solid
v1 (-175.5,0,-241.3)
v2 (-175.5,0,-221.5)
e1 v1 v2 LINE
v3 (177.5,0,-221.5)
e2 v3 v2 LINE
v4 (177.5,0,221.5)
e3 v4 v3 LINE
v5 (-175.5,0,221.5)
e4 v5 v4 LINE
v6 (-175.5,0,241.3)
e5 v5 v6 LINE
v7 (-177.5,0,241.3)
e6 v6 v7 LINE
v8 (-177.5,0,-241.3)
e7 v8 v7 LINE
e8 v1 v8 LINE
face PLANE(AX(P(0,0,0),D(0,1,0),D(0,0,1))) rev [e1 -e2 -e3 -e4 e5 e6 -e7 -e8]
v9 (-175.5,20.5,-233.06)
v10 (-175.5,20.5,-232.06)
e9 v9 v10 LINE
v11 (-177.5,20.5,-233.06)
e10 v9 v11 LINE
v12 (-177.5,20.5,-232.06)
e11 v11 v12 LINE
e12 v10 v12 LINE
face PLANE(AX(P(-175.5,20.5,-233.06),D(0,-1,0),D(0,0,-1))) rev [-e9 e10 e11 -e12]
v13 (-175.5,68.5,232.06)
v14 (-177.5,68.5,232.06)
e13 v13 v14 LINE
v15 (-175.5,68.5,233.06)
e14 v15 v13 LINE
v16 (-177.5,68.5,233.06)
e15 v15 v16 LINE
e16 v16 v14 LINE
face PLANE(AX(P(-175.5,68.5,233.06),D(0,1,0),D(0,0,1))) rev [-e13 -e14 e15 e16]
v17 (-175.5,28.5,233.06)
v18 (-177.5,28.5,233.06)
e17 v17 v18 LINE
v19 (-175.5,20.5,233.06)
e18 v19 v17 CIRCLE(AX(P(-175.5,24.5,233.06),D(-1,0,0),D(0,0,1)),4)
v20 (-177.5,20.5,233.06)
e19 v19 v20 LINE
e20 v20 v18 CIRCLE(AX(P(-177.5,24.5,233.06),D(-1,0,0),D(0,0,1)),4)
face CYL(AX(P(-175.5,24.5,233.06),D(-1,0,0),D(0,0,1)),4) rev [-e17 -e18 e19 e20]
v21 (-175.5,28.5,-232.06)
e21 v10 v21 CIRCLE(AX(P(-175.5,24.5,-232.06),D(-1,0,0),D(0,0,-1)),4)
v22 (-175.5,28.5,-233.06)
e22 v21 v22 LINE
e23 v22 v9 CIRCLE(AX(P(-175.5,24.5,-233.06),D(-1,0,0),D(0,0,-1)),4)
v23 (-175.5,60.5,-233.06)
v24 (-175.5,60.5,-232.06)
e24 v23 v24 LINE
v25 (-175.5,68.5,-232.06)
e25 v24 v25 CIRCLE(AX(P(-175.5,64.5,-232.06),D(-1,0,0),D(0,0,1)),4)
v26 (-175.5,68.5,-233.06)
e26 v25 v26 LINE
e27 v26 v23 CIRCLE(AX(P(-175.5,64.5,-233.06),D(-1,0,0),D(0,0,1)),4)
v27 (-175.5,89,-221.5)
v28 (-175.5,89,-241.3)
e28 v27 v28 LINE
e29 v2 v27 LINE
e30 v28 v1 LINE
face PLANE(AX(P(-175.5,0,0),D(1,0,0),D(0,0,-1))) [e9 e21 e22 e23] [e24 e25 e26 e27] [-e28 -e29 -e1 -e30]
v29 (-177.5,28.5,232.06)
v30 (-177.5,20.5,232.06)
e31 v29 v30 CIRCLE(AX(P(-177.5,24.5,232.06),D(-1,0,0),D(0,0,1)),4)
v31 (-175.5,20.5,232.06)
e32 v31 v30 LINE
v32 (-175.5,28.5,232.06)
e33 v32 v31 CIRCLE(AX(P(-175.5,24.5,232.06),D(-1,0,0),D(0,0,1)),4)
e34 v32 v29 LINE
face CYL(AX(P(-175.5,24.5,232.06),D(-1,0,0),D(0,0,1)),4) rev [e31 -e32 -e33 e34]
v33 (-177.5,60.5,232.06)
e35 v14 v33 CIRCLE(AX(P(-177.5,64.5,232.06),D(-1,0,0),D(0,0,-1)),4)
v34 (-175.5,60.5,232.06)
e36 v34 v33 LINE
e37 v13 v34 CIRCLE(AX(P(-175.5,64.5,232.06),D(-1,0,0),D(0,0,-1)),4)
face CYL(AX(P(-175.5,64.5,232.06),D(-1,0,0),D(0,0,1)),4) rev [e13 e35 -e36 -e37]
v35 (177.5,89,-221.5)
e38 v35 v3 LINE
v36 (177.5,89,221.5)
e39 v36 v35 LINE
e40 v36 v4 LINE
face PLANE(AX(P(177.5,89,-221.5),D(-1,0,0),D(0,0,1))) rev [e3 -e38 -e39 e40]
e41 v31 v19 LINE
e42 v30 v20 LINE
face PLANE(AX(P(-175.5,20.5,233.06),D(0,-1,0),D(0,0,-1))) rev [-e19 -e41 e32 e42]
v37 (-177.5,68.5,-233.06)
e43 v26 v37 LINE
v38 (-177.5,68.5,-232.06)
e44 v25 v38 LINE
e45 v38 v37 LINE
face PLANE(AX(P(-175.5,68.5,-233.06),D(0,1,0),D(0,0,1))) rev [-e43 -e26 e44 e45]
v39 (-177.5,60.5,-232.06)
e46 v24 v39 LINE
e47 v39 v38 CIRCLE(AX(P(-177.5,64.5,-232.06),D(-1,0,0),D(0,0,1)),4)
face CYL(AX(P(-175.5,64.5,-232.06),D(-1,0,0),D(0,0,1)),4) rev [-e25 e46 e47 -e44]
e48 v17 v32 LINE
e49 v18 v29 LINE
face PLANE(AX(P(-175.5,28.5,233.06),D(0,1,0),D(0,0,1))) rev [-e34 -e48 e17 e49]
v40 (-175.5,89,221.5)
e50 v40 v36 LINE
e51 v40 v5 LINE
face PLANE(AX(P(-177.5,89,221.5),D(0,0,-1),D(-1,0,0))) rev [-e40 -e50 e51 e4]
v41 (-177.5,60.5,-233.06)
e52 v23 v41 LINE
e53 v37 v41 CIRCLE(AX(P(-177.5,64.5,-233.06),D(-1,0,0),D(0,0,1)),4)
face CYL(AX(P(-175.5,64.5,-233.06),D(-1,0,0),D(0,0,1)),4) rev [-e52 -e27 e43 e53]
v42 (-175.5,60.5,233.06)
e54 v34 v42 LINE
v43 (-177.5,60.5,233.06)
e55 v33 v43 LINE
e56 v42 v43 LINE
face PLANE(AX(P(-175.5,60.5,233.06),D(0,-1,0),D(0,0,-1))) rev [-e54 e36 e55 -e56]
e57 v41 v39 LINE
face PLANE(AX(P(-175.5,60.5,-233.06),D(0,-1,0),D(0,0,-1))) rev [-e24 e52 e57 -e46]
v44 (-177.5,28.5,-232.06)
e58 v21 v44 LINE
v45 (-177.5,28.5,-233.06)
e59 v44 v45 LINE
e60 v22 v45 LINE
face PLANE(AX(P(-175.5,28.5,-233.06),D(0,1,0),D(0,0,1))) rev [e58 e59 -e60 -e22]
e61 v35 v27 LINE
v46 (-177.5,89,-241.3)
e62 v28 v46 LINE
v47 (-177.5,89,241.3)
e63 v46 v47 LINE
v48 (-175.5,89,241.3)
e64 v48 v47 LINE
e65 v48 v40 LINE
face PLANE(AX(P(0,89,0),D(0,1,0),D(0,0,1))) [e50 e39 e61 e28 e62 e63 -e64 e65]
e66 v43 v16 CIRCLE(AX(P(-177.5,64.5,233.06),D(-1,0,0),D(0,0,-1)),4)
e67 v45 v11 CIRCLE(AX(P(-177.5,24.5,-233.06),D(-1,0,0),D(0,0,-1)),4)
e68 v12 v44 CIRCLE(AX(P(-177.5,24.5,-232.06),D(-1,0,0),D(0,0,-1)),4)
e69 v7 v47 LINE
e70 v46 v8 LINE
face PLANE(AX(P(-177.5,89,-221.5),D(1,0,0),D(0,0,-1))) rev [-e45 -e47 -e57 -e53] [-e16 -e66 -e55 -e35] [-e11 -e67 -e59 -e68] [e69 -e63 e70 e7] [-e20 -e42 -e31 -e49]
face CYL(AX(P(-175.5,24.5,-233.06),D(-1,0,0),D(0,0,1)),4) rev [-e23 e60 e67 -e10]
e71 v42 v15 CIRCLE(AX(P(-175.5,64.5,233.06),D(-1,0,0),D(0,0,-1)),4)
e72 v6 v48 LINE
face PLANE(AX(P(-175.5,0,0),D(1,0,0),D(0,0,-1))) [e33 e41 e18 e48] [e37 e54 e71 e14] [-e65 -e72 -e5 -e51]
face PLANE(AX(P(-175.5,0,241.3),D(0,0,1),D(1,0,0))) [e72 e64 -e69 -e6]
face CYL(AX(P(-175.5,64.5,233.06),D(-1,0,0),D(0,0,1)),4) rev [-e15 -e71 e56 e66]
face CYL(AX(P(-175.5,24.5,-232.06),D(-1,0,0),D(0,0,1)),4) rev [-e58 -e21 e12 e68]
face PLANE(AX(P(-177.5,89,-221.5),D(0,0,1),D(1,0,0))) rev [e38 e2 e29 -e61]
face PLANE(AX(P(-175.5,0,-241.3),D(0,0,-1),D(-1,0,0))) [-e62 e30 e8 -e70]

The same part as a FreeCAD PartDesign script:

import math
import FreeCAD as App
import Part
import Sketcher
from FreeCAD import Vector


def add_polygon(sketch, points):
    """Adds a closed chain of lines whose ends are joined by coincident constraints."""
    first, n = sketch.GeometryCount, len(points)
    for a, b in zip(points, points[1:] + points[:1]):
        sketch.addGeometry(Part.LineSegment(App.Vector(*a, 0), App.Vector(*b, 0)), False)
    for i in range(n):
        sketch.addConstraint(Sketcher.Constraint("Coincident", first + i, 2, first + (i + 1) % n, 1))

doc = App.newDocument("Part")
body = doc.addObject("PartDesign::Body", "Body")

sketch1 = body.newObject("Sketcher::SketchObject", "Sketch")
sketch1.AttachmentSupport = (doc.getObject("XZ_Plane"), [""])
sketch1.MapMode = "FlatFace"
add_polygon(sketch1, [(-177.5, -221.5), (-177.5, 221.5), (177.5, 221.5), (177.5, -221.5)])
sketch1.addConstraint(Sketcher.Constraint("Vertical", 0))
sketch1.addConstraint(Sketcher.Constraint("Horizontal", 1))
sketch1.addConstraint(Sketcher.Constraint("Vertical", 2))
sketch1.addConstraint(Sketcher.Constraint("Horizontal", 3))
sketch1.addConstraint(Sketcher.Constraint("Symmetric", 0, 2, 2, 2, -1, 1))
sketch1.addConstraint(Sketcher.Constraint("DistanceX", 1, 1, 1, 2, 355.0))
sketch1.addConstraint(Sketcher.Constraint("DistanceY", 0, 1, 0, 2, 443.0))
pad1 = body.newObject("PartDesign::Pad", "Pad")
pad1.Profile = sketch1
pad1.Length = 89
pad1.Reversed = True

sketch2 = body.newObject("Sketcher::SketchObject", "Sketch001")
sketch2.AttachmentSupport = (doc.getObject("YZ_Plane"), [""])
sketch2.MapMode = "FlatFace"
sketch2.AttachmentOffset = App.Placement(Vector(0, 0, -177.5), App.Rotation())
add_polygon(sketch2, [(89, -241.3), (0, -241.3), (0, 241.3), (89, 241.3)])
sketch2.addGeometry(Part.LineSegment(Vector(20.5, -232.06, 0), Vector(20.5, -233.06, 0)), False)
sketch2.addGeometry(Part.ArcOfCircle(Part.Circle(Vector(24.5, -233.06, 0), Vector(0, 0, 1), 4), math.radians(180), math.radians(360)), False)
sketch2.addGeometry(Part.LineSegment(Vector(28.5, -233.06, 0), Vector(28.5, -232.06, 0)), False)
sketch2.addGeometry(Part.ArcOfCircle(Part.Circle(Vector(24.5, -232.06, 0), Vector(0, 0, 1), 4), math.radians(0), math.radians(180)), False)
sketch2.addGeometry(Part.ArcOfCircle(Part.Circle(Vector(24.5, 233.06, 0), Vector(0, 0, 1), 4), math.radians(0), math.radians(180)), False)
sketch2.addGeometry(Part.LineSegment(Vector(20.5, 233.06, 0), Vector(20.5, 232.06, 0)), False)
sketch2.addGeometry(Part.ArcOfCircle(Part.Circle(Vector(24.5, 232.06, 0), Vector(0, 0, 1), 4), math.radians(180), math.radians(360)), False)
sketch2.addGeometry(Part.LineSegment(Vector(28.5, 232.06, 0), Vector(28.5, 233.06, 0)), False)
sketch2.addGeometry(Part.ArcOfCircle(Part.Circle(Vector(64.5, -233.06, 0), Vector(0, 0, 1), 4), math.radians(180), math.radians(360)), False)
sketch2.addGeometry(Part.LineSegment(Vector(68.5, -233.06, 0), Vector(68.5, -232.06, 0)), False)
sketch2.addGeometry(Part.ArcOfCircle(Part.Circle(Vector(64.5, -232.06, 0), Vector(0, 0, 1), 4), math.radians(0), math.radians(180)), False)
sketch2.addGeometry(Part.LineSegment(Vector(60.5, -232.06, 0), Vector(60.5, -233.06, 0)), False)
sketch2.addGeometry(Part.LineSegment(Vector(68.5, 232.06, 0), Vector(68.5, 233.06, 0)), False)
sketch2.addGeometry(Part.ArcOfCircle(Part.Circle(Vector(64.5, 233.06, 0), Vector(0, 0, 1), 4), math.radians(0), math.radians(180)), False)
sketch2.addGeometry(Part.LineSegment(Vector(60.5, 233.06, 0), Vector(60.5, 232.06, 0)), False)
sketch2.addGeometry(Part.ArcOfCircle(Part.Circle(Vector(64.5, 232.06, 0), Vector(0, 0, 1), 4), math.radians(180), math.radians(360)), False)
sketch2.addConstraint(Sketcher.Constraint("Tangent", 4, 2, 5, 1))
sketch2.addConstraint(Sketcher.Constraint("Tangent", 5, 2, 6, 1))
sketch2.addConstraint(Sketcher.Constraint("Tangent", 6, 2, 7, 1))
sketch2.addConstraint(Sketcher.Constraint("Tangent", 7, 2, 4, 1))
sketch2.addConstraint(Sketcher.Constraint("Tangent", 8, 2, 9, 1))
sketch2.addConstraint(Sketcher.Constraint("Tangent", 9, 2, 10, 1))
sketch2.addConstraint(Sketcher.Constraint("Tangent", 10, 2, 11, 1))
sketch2.addConstraint(Sketcher.Constraint("Tangent", 11, 2, 8, 1))
sketch2.addConstraint(Sketcher.Constraint("Tangent", 12, 2, 13, 1))
sketch2.addConstraint(Sketcher.Constraint("Tangent", 13, 2, 14, 1))
sketch2.addConstraint(Sketcher.Constraint("Tangent", 14, 2, 15, 1))
sketch2.addConstraint(Sketcher.Constraint("Tangent", 15, 2, 12, 1))
sketch2.addConstraint(Sketcher.Constraint("Tangent", 16, 2, 17, 1))
sketch2.addConstraint(Sketcher.Constraint("Tangent", 17, 2, 18, 1))
sketch2.addConstraint(Sketcher.Constraint("Tangent", 18, 2, 19, 1))
sketch2.addConstraint(Sketcher.Constraint("Tangent", 19, 2, 16, 1))
sketch2.addConstraint(Sketcher.Constraint("Horizontal", 0))
sketch2.addConstraint(Sketcher.Constraint("Vertical", 1))
sketch2.addConstraint(Sketcher.Constraint("Horizontal", 2))
sketch2.addConstraint(Sketcher.Constraint("Vertical", 3))
sketch2.addConstraint(Sketcher.Constraint("Vertical", 4))
sketch2.addConstraint(Sketcher.Constraint("Vertical", 6))
sketch2.addConstraint(Sketcher.Constraint("Vertical", 9))
sketch2.addConstraint(Sketcher.Constraint("Vertical", 11))
sketch2.addConstraint(Sketcher.Constraint("Vertical", 13))
sketch2.addConstraint(Sketcher.Constraint("Vertical", 15))
sketch2.addConstraint(Sketcher.Constraint("Vertical", 16))
sketch2.addConstraint(Sketcher.Constraint("Vertical", 18))
sketch2.addConstraint(Sketcher.Constraint("Equal", 7, 8))
sketch2.addConstraint(Sketcher.Constraint("Equal", 10, 12))
sketch2.addConstraint(Sketcher.Constraint("Equal", 14, 17))
sketch2.addConstraint(Sketcher.Constraint("Symmetric", 0, 2, 1, 2, -1, 1))
sketch2.addConstraint(Sketcher.Constraint("Symmetric", 5, 3, 8, 3, -1))
sketch2.addConstraint(Sketcher.Constraint("Symmetric", 12, 3, 17, 3, -1))
sketch2.addConstraint(Sketcher.Constraint("Horizontal", 5, 3, 12, 3))
sketch2.addConstraint(Sketcher.Constraint("Horizontal", 7, 3, 14, 3))
sketch2.addConstraint(Sketcher.Constraint("Horizontal", 10, 3, 19, 3))
sketch2.addConstraint(Sketcher.Constraint("Equal", 6, 9))
sketch2.addConstraint(Sketcher.Constraint("Radius", 5, 4.0))
sketch2.addConstraint(Sketcher.Constraint("DistanceX", 0, 2, 0, 1, 89.0))
sketch2.addConstraint(Sketcher.Constraint("DistanceY", 4, 2, 4, 1, 1.0))
sketch2.addConstraint(Sketcher.Constraint("DistanceY", 1, 1, 1, 2, 482.6))
sketch2.addConstraint(Sketcher.Constraint("DistanceX", 5, 3, 12, 3, 40.0))
sketch2.addConstraint(Sketcher.Constraint("DistanceX", -1, 1, 5, 3, 24.5))
sketch2.addConstraint(Sketcher.Constraint("DistanceY", 5, 3, -1, 1, 233.06))
pad2 = body.newObject("PartDesign::Pad", "Pad001")
pad2.Profile = sketch2
pad2.Length = 2

doc.recompute()
